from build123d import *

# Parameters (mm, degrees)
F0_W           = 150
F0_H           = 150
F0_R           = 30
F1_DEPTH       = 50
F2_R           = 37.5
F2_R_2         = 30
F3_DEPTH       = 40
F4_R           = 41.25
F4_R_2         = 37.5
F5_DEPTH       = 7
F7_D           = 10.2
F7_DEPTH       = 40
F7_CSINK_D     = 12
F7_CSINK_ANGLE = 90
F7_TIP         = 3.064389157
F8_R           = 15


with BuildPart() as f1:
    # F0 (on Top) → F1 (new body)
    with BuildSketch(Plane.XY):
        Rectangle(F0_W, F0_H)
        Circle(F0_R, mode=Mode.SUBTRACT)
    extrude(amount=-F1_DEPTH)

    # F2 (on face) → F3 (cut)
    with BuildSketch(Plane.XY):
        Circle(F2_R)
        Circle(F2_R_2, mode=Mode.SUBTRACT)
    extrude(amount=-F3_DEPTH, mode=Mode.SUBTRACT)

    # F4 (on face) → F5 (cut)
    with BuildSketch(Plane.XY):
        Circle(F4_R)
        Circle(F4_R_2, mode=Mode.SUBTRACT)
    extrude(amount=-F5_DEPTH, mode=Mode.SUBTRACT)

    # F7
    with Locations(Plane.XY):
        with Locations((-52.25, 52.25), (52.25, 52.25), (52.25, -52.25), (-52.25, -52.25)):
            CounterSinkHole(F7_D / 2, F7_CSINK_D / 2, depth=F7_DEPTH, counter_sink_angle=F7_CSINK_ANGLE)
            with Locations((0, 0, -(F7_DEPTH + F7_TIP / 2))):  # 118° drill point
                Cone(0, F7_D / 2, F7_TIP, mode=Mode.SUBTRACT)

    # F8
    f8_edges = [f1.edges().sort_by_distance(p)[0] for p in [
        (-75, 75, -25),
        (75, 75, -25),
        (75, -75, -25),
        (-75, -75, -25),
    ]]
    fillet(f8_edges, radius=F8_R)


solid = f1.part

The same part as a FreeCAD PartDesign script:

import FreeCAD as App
import Part
import Sketcher
Q = App.Units.Quantity


def edges_at(feature, points):
    """Names of the edges that pass closest to the given points."""
    edges = feature.Shape.Edges
    near = lambda p: min(range(len(edges)), key=lambda i: edges[i].distToShape(Part.Vertex(*p))[0])
    return sorted({f"Edge{near(p) + 1}" for p in points})


def add_polygon(sketch, points):
    """Adds a closed chain of lines whose ends are joined by coincident constraints."""
    first, n = sketch.GeometryCount, len(points)
    for a, b in zip(points, points[1:] + points[:1]):
        sketch.addGeometry(Part.LineSegment(App.Vector(*a, 0), App.Vector(*b, 0)), False)
    for i in range(n):
        sketch.addConstraint(Sketcher.Constraint("Coincident", first + i, 2, first + (i + 1) % n, 1))

doc = App.newDocument("Part")
body = doc.addObject("PartDesign::Body", "Body")

# Sketch on XY plane
sketch1 = body.newObject("Sketcher::SketchObject", "Sketch")
sketch1.AttachmentSupport = (doc.getObject("XY_Plane"), [""])
sketch1.MapMode = "FlatFace"
add_polygon(sketch1, [(-75, 75), (-75, -75), (75, -75), (75, 75)])  # lines 0-3
sketch1.addGeometry(Part.Circle(App.Vector(0, 0, 0), App.Vector(0, 0, 1), 30), False)  # 4
sketch1.addConstraint([
    Sketcher.Constraint("Vertical", 0),
    Sketcher.Constraint("Horizontal", 1),
    Sketcher.Constraint("Vertical", 2),
    Sketcher.Constraint("Horizontal", 3),
    Sketcher.Constraint("Coincident", 4, 3, -1, 1),
    Sketcher.Constraint("Symmetric", 0, 2, 2, 2, -1, 1),
    Sketcher.Constraint("Equal", 3, 0),
    Sketcher.Constraint("Diameter", 4, Q("60 mm")),
    Sketcher.Constraint("DistanceX", 1, 1, 1, 2, Q("150 mm")),
])
pad1 = body.newObject("PartDesign::Pad", "Pad")
pad1.Profile = sketch1
pad1.Length = 50
pad1.Reversed = True

# Sketch on XY plane
sketch2 = body.newObject("Sketcher::SketchObject", "Sketch001")
sketch2.AttachmentSupport = (doc.getObject("XY_Plane"), [""])
sketch2.MapMode = "FlatFace"
sketch2.addGeometry([
    Part.Circle(App.Vector(0, 0, 0), App.Vector(0, 0, 1), 38),
    Part.Circle(App.Vector(0, 0, 0), App.Vector(0, 0, 1), 30),
], False)
sketch2.addConstraint([
    Sketcher.Constraint("Coincident", 0, 3, -1, 1),
    Sketcher.Constraint("Coincident", 1, 3, -1, 1),
    Sketcher.Constraint("Diameter", 0, Q("75 mm")),
    Sketcher.Constraint("Diameter", 1, Q("60 mm")),
])
pocket1 = body.newObject("PartDesign::Pocket", "Pocket")
pocket1.Profile = sketch2
pocket1.Length = 40

# Sketch on XY plane
sketch3 = body.newObject("Sketcher::SketchObject", "Sketch002")
sketch3.AttachmentSupport = (doc.getObject("XY_Plane"), [""])
sketch3.MapMode = "FlatFace"
sketch3.addGeometry([
    Part.Circle(App.Vector(0, 0, 0), App.Vector(0, 0, 1), 41),
    Part.Circle(App.Vector(0, 0, 0), App.Vector(0, 0, 1), 38),
], False)
sketch3.addConstraint([
    Sketcher.Constraint("Coincident", 0, 3, -1, 1),
    Sketcher.Constraint("Coincident", 1, 3, -1, 1),
    Sketcher.Constraint("Diameter", 1, Q("75 mm")),
    Sketcher.Constraint("Diameter", 0, Q("82.5 mm")),
])
pocket2 = body.newObject("PartDesign::Pocket", "Pocket001")
pocket2.Profile = sketch3
pocket2.Length = 7

# Sketch on XY plane
sketch4 = body.newObject("Sketcher::SketchObject", "Sketch003")
sketch4.AttachmentSupport = (doc.getObject("XY_Plane"), [""])
sketch4.MapMode = "FlatFace"
sketch4.addGeometry([
    Part.Circle(App.Vector(-52, 52, 0), App.Vector(0, 0, 1), 5),
    Part.Circle(App.Vector(52, 52, 0), App.Vector(0, 0, 1), 5),
    Part.Circle(App.Vector(52, -52, 0), App.Vector(0, 0, 1), 5),
    Part.Circle(App.Vector(-52, -52, 0), App.Vector(0, 0, 1), 5),
], False)
sketch4.addConstraint([
    Sketcher.Constraint("Equal", 0, 1),
    Sketcher.Constraint("Equal", 1, 2),
    Sketcher.Constraint("Equal", 2, 3),
    Sketcher.Constraint("Symmetric", 0, 3, 2, 3, -1, 1),
    Sketcher.Constraint("Symmetric", 1, 3, 3, 3, -1, 1),
    Sketcher.Constraint("Symmetric", 0, 3, 1, 3, -2),
    Sketcher.Constraint("Diameter", 0, Q("10.2 mm")),
    Sketcher.Constraint("DistanceX", 0, 3, 1, 3, Q("104.5 mm")),
    Sketcher.Constraint("DistanceY", 2, 3, 1, 3, Q("104.5 mm")),
])
doc.recompute()
hole = body.newObject("PartDesign::Hole", "Hole")
hole.Profile = sketch4
hole.ThreadType = "None"
hole.Diameter = 10.2
hole.DepthType = "Dimension"
hole.Depth = 40
hole.DrillPoint = "Angled"
hole.DrillPointAngle = 118
hole.HoleCutType = "Countersink"
hole.HoleCutDiameter = 12
hole.HoleCutCountersinkAngle = 90
doc.recompute()

fillet = body.newObject("PartDesign::Fillet", "Fillet")
fillet.Base = (hole, edges_at(hole, [
    (-75, 75, -25),
    (75, 75, -25),
    (75, -75, -25),
    (-75, -75, -25),
]))
fillet.Radius = 15

doc.recompute()
